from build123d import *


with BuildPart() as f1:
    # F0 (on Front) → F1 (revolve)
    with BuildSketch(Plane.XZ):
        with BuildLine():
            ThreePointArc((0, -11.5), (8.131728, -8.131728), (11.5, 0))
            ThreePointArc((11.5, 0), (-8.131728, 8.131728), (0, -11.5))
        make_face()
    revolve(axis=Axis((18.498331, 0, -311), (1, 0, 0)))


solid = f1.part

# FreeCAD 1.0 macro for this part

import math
import FreeCAD as App
import Part
import Sketcher
Q = App.Units.Quantity

doc = App.newDocument("Part")
params = doc.addObject("Spreadsheet::Sheet", "Params")
for row, (alias, value) in enumerate([
    ("sketch1_radius", "11.5 mm"),
    ("revolution_angle", "360 deg"),
], start=1):
    params.set(f"A{row}", alias)
    params.set(f"B{row}", "=" + value)
    params.setAlias(f"B{row}", alias)

body = doc.addObject("PartDesign::Body", "Body")

# Sketch on XZ plane
sketch1 = body.newObject("Sketcher::SketchObject", "Sketch")
sketch1.AttachmentSupport = (doc.getObject("XZ_Plane"), [""])
sketch1.MapMode = "FlatFace"
sketch1.addGeometry([
    Part.ArcOfCircle(Part.Circle(App.Vector(0, 0, 0), App.Vector(0, 0, 1), 11), math.radians(-90), math.radians(0)),
    Part.ArcOfCircle(Part.Circle(App.Vector(0, 0, 0), App.Vector(0, 0, 1), 12), math.radians(0), math.radians(270)),
], False)
sketch1.addGeometry(Part.LineSegment(App.Vector(0, -311, 0), App.Vector(12, -311, 0)), True)  # axis
sketch1.addConstraint([
    Sketcher.Constraint("Tangent", 0, 1, 1, 2),
    Sketcher.Constraint("Coincident", 1, 1, 0, 2),
    Sketcher.Constraint("Horizontal", 2),
    Sketcher.Constraint("Coincident", 0, 3, -1, 1),
    Sketcher.Constraint("PointOnObject", 0, 1, -2),
    Sketcher.Constraint("PointOnObject", 1, 1, -1),
    Sketcher.Constraint("PointOnObject", 2, 1, -2),
    Sketcher.Constraint("Vertical", 1, 1, 2, 2),
    Sketcher.Constraint("Radius", 0, Q("11.5 mm")),
    Sketcher.Constraint("DistanceY", 2, 1, -1, 1, Q("311 mm")),
])
sketch1.setExpression("Constraints[8]", "Params.sketch1_radius")
revolution = body.newObject("PartDesign::Revolution", "Revolution")
revolution.Profile = sketch1
revolution.ReferenceAxis = (sketch1, ["Axis0"])
revolution.setExpression("Angle", "Params.revolution_angle")

doc.recompute()
